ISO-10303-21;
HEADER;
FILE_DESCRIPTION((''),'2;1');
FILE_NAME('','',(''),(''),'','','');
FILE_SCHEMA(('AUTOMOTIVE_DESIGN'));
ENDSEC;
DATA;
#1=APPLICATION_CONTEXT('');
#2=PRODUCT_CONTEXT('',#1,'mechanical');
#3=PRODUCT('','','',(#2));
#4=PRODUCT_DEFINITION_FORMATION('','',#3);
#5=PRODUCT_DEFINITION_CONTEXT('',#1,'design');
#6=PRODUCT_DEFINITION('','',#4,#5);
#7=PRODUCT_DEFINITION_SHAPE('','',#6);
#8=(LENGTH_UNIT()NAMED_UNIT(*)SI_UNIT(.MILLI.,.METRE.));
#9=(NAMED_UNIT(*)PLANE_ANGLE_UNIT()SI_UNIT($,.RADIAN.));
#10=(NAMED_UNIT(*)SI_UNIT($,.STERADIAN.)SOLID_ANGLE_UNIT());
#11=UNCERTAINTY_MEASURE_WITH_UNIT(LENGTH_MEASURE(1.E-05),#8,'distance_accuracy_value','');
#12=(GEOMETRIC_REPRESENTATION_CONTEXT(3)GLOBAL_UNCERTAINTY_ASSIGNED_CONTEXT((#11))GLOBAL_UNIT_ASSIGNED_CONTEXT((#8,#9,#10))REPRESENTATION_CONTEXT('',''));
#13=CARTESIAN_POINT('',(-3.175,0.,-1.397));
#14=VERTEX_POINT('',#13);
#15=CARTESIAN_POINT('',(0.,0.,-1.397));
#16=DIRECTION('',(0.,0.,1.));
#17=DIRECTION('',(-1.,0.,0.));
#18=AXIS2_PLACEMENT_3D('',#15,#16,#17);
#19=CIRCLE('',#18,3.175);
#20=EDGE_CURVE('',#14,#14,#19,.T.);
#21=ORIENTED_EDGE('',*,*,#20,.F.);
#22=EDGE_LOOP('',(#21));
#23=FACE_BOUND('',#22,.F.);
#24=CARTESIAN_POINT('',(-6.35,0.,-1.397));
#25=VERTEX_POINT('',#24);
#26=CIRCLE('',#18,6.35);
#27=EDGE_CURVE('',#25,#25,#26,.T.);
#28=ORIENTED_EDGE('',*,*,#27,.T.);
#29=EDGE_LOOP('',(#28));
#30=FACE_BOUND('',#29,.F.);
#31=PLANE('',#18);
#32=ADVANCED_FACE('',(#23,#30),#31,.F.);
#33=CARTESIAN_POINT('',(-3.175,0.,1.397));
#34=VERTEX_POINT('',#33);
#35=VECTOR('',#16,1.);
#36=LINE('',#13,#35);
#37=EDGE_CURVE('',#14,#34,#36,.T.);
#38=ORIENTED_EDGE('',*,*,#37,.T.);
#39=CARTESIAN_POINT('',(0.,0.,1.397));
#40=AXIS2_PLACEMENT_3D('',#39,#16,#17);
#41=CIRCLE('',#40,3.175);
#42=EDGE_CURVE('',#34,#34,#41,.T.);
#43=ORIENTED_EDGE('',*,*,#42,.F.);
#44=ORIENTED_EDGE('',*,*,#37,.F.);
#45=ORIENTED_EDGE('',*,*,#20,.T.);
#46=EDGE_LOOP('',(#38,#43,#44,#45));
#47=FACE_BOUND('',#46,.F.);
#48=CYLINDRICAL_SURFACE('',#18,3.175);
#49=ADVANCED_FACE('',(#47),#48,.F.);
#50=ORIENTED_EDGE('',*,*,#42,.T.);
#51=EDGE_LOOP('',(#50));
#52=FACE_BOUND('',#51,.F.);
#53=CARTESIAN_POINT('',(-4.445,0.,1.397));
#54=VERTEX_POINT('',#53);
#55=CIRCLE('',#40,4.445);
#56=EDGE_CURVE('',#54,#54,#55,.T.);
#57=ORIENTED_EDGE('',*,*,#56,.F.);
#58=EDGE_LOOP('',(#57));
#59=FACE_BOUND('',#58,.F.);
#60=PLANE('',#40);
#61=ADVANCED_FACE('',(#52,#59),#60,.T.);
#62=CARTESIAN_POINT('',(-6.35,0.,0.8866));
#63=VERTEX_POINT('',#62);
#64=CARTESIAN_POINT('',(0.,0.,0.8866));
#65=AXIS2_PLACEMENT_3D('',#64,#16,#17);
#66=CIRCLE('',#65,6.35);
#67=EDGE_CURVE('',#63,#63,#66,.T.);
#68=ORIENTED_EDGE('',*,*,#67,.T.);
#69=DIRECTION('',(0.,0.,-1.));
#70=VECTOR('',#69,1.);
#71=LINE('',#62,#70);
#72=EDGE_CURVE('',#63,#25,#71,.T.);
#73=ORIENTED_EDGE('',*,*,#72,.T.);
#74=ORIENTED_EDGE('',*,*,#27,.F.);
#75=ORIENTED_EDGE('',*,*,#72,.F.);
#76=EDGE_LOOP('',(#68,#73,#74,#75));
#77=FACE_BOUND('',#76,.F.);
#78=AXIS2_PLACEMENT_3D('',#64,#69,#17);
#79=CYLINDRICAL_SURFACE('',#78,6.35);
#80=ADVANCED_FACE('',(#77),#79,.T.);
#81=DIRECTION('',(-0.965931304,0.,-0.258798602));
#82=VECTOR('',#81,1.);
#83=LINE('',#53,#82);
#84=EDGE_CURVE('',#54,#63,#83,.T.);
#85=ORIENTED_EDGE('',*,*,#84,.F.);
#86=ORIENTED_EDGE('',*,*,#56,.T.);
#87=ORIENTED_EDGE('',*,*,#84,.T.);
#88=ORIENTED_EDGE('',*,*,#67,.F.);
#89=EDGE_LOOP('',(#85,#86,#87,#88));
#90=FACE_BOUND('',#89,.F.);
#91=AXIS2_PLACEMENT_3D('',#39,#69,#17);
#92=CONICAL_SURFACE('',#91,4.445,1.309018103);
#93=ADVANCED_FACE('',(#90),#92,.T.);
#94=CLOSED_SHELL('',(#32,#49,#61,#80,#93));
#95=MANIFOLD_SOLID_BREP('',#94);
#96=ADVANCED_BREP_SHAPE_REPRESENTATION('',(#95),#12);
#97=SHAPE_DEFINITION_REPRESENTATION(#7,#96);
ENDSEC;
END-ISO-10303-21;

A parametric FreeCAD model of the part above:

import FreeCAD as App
import Part
import Sketcher

V = App.Vector
Q = App.Units.Quantity

doc = App.newDocument("Part")
body = doc.addObject("PartDesign::Body", "Body")

sketch1 = doc.addObject("Sketcher::SketchObject", "Sketch")
body.addObject(sketch1)
sketch1.AttachmentSupport = (doc.XZ_Plane, [""])
sketch1.MapMode = "FlatFace"
sketch1.addGeometry([
    Part.LineSegment(V(-3.2, 1.4, 0), V(-3.2, -1.4, 0)),
    Part.LineSegment(V(-3.2, -1.4, 0), V(-6.3, -1.4, 0)),
    Part.LineSegment(V(-6.3, -1.4, 0), V(-6.3, 0.9, 0)),
    Part.LineSegment(V(-6.3, 0.9, 0), V(-4.4, 1.4, 0)),
    Part.LineSegment(V(-4.4, 1.4, 0), V(-3.2, 1.4, 0)),
], False)
sketch1.addConstraint([
    Sketcher.Constraint("Coincident", 0, 2, 1, 1),
    Sketcher.Constraint("Coincident", 1, 2, 2, 1),
    Sketcher.Constraint("Coincident", 2, 2, 3, 1),
    Sketcher.Constraint("Coincident", 3, 2, 4, 1),
    Sketcher.Constraint("Coincident", 4, 2, 0, 1),
    Sketcher.Constraint("Vertical", 0),
    Sketcher.Constraint("Horizontal", 1),
    Sketcher.Constraint("Vertical", 2),
    Sketcher.Constraint("Horizontal", 4),
    Sketcher.Constraint("DistanceX", 4, 1, 4, 2, Q("0.05 in")),
    Sketcher.Constraint("DistanceY", 0, 2, 0, 1, Q("0.11 in")),
    Sketcher.Constraint("DistanceX", 1, 2, -1, 1, Q("0.25 in")),
    Sketcher.Constraint("DistanceX", 1, 2, 1, 1, Q("0.125 in")),
    Sketcher.Constraint("DistanceY", 2, 1, 2, 2, Q("0.0899 in")),
    Sketcher.Constraint("DistanceY", 0, 2, -1, 1, Q("0.055 in")),
])
revolution = doc.addObject("PartDesign::Revolution", "Revolution")
body.addObject(revolution)
revolution.Profile = sketch1
revolution.ReferenceAxis = (sketch1, ["V_Axis"])
revolution.Angle = 360

doc.recompute()
